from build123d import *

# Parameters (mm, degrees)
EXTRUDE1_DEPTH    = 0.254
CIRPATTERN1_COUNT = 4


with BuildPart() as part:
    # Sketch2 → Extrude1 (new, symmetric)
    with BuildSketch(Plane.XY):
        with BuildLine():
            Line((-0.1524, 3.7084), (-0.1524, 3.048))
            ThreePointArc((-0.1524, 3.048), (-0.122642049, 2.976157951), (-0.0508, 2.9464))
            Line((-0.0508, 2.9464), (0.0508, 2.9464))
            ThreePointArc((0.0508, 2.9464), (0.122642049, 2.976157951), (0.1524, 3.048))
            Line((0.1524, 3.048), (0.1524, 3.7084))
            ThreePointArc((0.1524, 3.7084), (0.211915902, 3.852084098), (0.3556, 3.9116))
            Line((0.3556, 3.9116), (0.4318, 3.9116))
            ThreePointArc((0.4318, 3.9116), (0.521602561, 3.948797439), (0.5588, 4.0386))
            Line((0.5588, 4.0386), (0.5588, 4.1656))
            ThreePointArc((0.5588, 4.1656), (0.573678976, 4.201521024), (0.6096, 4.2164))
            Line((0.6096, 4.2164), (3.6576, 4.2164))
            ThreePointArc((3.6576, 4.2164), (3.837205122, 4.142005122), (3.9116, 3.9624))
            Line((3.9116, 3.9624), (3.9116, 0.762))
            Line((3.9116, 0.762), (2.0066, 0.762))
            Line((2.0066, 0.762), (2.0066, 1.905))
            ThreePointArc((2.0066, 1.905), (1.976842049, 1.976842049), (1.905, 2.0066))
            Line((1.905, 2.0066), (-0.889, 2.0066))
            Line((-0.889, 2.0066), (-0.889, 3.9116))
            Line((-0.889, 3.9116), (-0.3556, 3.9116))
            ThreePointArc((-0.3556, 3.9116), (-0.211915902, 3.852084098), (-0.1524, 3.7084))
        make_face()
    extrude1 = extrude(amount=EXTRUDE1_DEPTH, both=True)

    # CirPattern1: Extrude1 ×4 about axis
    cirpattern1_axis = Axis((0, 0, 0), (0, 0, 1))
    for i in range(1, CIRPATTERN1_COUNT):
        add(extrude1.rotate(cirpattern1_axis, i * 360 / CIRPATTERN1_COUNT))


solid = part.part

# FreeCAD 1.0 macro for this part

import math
import FreeCAD as App
import Part
import Sketcher

V = App.Vector
Q = App.Units.Quantity

doc = App.newDocument("Part")
body = doc.addObject("PartDesign::Body", "Body")

# Sketch on XY plane
sketch1 = doc.addObject("Sketcher::SketchObject", "Sketch")
body.addObject(sketch1)
sketch1.AttachmentSupport = (doc.XY_Plane, [""])
sketch1.MapMode = "FlatFace"
sketch1.addGeometry([
    Part.LineSegment(V(-0.1524, 3.048, 0), V(-0.1524, 3.7084, 0)),  # 0
    Part.ArcOfCircle(Part.Circle(V(-0.3556, 3.7084, 0), V(0, 0, 1), 0.2032), math.radians(0), math.radians(90)),  # 1
    Part.LineSegment(V(-0.3556, 3.9116, 0), V(-0.889, 3.9116, 0)),  # 2
    Part.LineSegment(V(-0.889, 3.9116, 0), V(-0.889, 2.0066, 0)),  # 3
    Part.LineSegment(V(-0.889, 2.0066, 0), V(1.905, 2.0066, 0)),  # 4
    Part.ArcOfCircle(Part.Circle(V(1.905, 1.905, 0), V(0, 0, 1), 0.1016), math.radians(0), math.radians(90)),  # 5
    Part.LineSegment(V(2.0066, 1.905, 0), V(2.0066, 0.762, 0)),  # 6
    Part.LineSegment(V(2.0066, 0.762, 0), V(3.9116, 0.762, 0)),  # 7
    Part.LineSegment(V(3.9116, 0.762, 0), V(3.9116, 3.9624, 0)),  # 8
    Part.ArcOfCircle(Part.Circle(V(3.6576, 3.9624, 0), V(0, 0, 1), 0.254), math.radians(0), math.radians(90)),  # 9
    Part.LineSegment(V(3.6576, 4.2164, 0), V(0.6096, 4.2164, 0)),  # 10
    Part.ArcOfCircle(Part.Circle(V(0.6096, 4.1656, 0), V(0, 0, 1), 0.0508), math.radians(90.000002), math.radians(179.999998)),  # 11
    Part.LineSegment(V(0.5588, 4.1656, 0), V(0.5588, 4.0386, 0)),  # 12
    Part.ArcOfCircle(Part.Circle(V(0.4318, 4.0386, 0), V(0, 0, 1), 0.127), math.radians(-90), math.radians(0)),  # 13
    Part.LineSegment(V(0.4318, 3.9116, 0), V(0.3556, 3.9116, 0)),  # 14
    Part.ArcOfCircle(Part.Circle(V(0.3556, 3.7084, 0), V(0, 0, 1), 0.2032), math.radians(90), math.radians(180)),  # 15
    Part.LineSegment(V(0.1524, 3.7084, 0), V(0.1524, 3.048, 0)),  # 16
    Part.ArcOfCircle(Part.Circle(V(0.0508, 3.048, 0), V(0, 0, 1), 0.1016), math.radians(-90), math.radians(0)),  # 17
    Part.LineSegment(V(0.0508, 2.9464, 0), V(-0.0508, 2.9464, 0)),  # 18
    Part.ArcOfCircle(Part.Circle(V(-0.0508, 3.048, 0), V(0, 0, 1), 0.1016), math.radians(180), math.radians(270)),  # 19
], False)
sketch1.addConstraint([
    Sketcher.Constraint("Tangent", 0, 2, 1, 1),
    Sketcher.Constraint("Tangent", 1, 2, 2, 1),
    Sketcher.Constraint("Coincident", 2, 2, 3, 1),
    Sketcher.Constraint("Coincident", 3, 2, 4, 1),
    Sketcher.Constraint("Tangent", 4, 2, 5, 2),
    Sketcher.Constraint("Tangent", 5, 1, 6, 1),
    Sketcher.Constraint("Coincident", 6, 2, 7, 1),
    Sketcher.Constraint("Coincident", 7, 2, 8, 1),
    Sketcher.Constraint("Tangent", 8, 2, 9, 1),
    Sketcher.Constraint("Tangent", 9, 2, 10, 1),
    Sketcher.Constraint("Tangent", 10, 2, 11, 1),
    Sketcher.Constraint("Tangent", 11, 2, 12, 1),
    Sketcher.Constraint("Tangent", 12, 2, 13, 2),
    Sketcher.Constraint("Tangent", 13, 1, 14, 1),
    Sketcher.Constraint("Tangent", 14, 2, 15, 1),
    Sketcher.Constraint("Tangent", 15, 2, 16, 1),
    Sketcher.Constraint("Tangent", 16, 2, 17, 2),
    Sketcher.Constraint("Tangent", 17, 1, 18, 1),
    Sketcher.Constraint("Tangent", 18, 2, 19, 2),
    Sketcher.Constraint("Tangent", 19, 1, 0, 1),
    Sketcher.Constraint("Vertical", 0),
    Sketcher.Constraint("Horizontal", 2),
    Sketcher.Constraint("Vertical", 3),
    Sketcher.Constraint("Horizontal", 4),
    Sketcher.Constraint("Vertical", 6),
    Sketcher.Constraint("Horizontal", 7),
    Sketcher.Constraint("Vertical", 8),
    Sketcher.Constraint("Horizontal", 10),
    Sketcher.Constraint("Vertical", 12),
    Sketcher.Constraint("Horizontal", 14),
    Sketcher.Constraint("Vertical", 16),
    Sketcher.Constraint("Horizontal", 18),
    Sketcher.Constraint("Equal", 1, 15),
    Sketcher.Constraint("Equal", 5, 17),
    Sketcher.Constraint("Equal", 17, 19),
    Sketcher.Constraint("Symmetric", 1, 3, 15, 3, -2),
    Sketcher.Constraint("Equal", 7, 3),
    Sketcher.Constraint("Radius", 9, Q("0.01 in")),
    Sketcher.Constraint("Radius", 1, Q("0.008 in")),
    Sketcher.Constraint("Radius", 5, Q("0.004 in")),
    Sketcher.Constraint("Radius", 11, Q("0.002 in")),
    Sketcher.Constraint("Radius", 13, Q("0.005 in")),
    Sketcher.Constraint("DistanceX", 4, 1, 4, 2, Q("0.11 in")),
    Sketcher.Constraint("DistanceX", 10, 2, 10, 1, Q("0.12 in")),
    Sketcher.Constraint("DistanceX", 2, 2, 2, 1, Q("0.021 in")),
    Sketcher.Constraint("DistanceX", 7, 1, 7, 2, Q("0.075 in")),
    Sketcher.Constraint("DistanceX", 14, 2, 14, 1, Q("0.003 in")),
    Sketcher.Constraint("DistanceY", 0, 1, 0, 2, Q("0.026 in")),
    Sketcher.Constraint("DistanceY", 6, 2, 6, 1, Q("0.045 in")),
    Sketcher.Constraint("DistanceY", 8, 1, 8, 2, Q("0.126 in")),
    Sketcher.Constraint("DistanceY", -1, 1, 17, 3, Q("0.12 in")),
])
pad1 = doc.addObject("PartDesign::Pad", "Pad")
body.addObject(pad1)
pad1.Profile = sketch1
pad1.Length = Q("0.02 in")
pad1.Midplane = True
doc.recompute()

polarpattern = doc.addObject("PartDesign::PolarPattern", "PolarPattern")
body.addObject(polarpattern)
polarpattern.Originals = [pad1]
polarpattern.Axis = (doc.Z_Axis, [""])
polarpattern.Angle = 360
polarpattern.Occurrences = 4
body.Tip = polarpattern

doc.recompute()
